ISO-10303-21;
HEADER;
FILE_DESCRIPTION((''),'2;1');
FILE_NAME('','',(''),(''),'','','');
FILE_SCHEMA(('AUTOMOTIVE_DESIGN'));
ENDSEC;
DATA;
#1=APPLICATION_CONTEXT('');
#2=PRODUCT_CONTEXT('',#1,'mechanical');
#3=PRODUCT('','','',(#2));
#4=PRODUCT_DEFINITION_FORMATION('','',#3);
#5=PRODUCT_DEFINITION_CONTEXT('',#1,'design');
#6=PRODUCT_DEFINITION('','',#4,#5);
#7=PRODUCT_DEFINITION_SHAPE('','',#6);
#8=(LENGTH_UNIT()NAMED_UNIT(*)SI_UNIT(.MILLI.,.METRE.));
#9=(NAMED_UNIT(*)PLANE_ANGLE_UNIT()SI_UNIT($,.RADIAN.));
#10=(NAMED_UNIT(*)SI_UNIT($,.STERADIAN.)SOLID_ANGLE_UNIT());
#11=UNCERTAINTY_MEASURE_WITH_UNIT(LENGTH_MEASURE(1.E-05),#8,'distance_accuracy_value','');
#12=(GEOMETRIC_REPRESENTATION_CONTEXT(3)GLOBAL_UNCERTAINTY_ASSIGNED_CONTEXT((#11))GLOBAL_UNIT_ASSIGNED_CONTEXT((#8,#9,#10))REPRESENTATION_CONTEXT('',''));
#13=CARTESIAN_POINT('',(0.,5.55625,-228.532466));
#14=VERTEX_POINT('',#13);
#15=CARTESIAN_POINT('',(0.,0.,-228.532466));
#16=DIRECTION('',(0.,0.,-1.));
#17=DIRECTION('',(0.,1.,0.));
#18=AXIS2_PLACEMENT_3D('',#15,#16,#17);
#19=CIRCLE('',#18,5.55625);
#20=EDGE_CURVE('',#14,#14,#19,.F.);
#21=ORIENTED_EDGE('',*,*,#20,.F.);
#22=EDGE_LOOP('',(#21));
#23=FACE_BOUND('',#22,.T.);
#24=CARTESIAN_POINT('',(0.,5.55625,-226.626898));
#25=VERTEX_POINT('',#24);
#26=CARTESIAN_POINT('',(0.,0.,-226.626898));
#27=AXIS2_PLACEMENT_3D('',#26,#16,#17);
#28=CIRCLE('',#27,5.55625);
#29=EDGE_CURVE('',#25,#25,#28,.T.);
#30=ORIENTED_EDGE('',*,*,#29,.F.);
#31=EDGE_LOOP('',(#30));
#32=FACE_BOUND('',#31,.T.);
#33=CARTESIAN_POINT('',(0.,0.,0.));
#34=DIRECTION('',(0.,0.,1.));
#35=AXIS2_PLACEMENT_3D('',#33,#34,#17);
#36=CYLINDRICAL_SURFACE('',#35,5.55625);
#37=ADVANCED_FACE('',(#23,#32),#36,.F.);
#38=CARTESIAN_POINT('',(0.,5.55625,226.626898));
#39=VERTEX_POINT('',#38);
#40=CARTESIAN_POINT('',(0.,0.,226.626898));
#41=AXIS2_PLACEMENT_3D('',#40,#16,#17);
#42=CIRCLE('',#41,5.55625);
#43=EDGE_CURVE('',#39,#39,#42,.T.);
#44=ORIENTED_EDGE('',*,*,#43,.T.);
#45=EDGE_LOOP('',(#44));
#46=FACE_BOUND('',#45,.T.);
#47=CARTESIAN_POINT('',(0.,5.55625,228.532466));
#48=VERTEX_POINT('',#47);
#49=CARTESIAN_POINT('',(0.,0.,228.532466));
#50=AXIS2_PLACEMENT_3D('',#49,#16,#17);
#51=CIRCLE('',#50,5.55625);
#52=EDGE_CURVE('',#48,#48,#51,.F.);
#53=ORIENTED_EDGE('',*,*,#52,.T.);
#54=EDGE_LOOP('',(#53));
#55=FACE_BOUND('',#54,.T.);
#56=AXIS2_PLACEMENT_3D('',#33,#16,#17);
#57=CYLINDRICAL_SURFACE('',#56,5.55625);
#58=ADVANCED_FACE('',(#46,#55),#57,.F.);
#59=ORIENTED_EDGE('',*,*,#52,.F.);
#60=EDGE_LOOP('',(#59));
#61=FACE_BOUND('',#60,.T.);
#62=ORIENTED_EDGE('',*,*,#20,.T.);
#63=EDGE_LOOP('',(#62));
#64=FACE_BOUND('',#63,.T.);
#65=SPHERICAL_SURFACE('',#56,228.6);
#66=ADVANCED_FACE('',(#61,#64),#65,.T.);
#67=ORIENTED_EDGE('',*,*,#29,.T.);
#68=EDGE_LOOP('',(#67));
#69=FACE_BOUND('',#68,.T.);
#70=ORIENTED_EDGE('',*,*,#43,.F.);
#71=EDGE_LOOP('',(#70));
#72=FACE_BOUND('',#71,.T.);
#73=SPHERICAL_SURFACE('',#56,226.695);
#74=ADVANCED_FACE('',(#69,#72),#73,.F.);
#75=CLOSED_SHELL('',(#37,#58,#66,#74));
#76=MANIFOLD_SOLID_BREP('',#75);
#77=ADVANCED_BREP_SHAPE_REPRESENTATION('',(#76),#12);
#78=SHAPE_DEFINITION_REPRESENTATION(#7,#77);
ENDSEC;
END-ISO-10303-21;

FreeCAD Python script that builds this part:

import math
import FreeCAD as App
import Part
import Sketcher
Q = App.Units.Quantity

doc = App.newDocument("Part")
body = doc.addObject("PartDesign::Body", "Body")

sketch1 = body.newObject("Sketcher::SketchObject", "Sketch")
sketch1.AttachmentSupport = (doc.getObject("XY_Plane"), [""])
sketch1.MapMode = "FlatFace"
sketch1.addGeometry([
    Part.LineSegment(App.Vector(-228.6, 0, 0), App.Vector(-226.7, 0, 0)),
    Part.ArcOfCircle(Part.Circle(App.Vector(0, 0, 0), App.Vector(0, 0, 1), 226.7), math.radians(0), math.radians(180)),
    Part.LineSegment(App.Vector(226.7, 0, 0), App.Vector(228.6, 0, 0)),
    Part.ArcOfCircle(Part.Circle(App.Vector(0, 0, 0), App.Vector(0, 0, 1), 228.6), math.radians(0), math.radians(180)),
], False)
sketch1.addConstraint([
    Sketcher.Constraint("Coincident", 0, 2, 1, 2),
    Sketcher.Constraint("Coincident", 1, 1, 2, 1),
    Sketcher.Constraint("Coincident", 2, 2, 3, 1),
    Sketcher.Constraint("Coincident", 3, 2, 0, 1),
    Sketcher.Constraint("Horizontal", 0),
    Sketcher.Constraint("Horizontal", 2),
    Sketcher.Constraint("Coincident", 1, 3, -1, 1),
    Sketcher.Constraint("Coincident", 3, 3, -1, 1),
    Sketcher.Constraint("PointOnObject", 0, 2, -1),
    Sketcher.Constraint("PointOnObject", 1, 1, -1),
    Sketcher.Constraint("Radius", 3, Q("9 in")),
    Sketcher.Constraint("Radius", 1, Q("8.925 in")),
])
revolution = body.newObject("PartDesign::Revolution", "Revolution")
revolution.Profile = sketch1
revolution.ReferenceAxis = (sketch1, ["H_Axis"])
revolution.Angle = 180

sketch2 = body.newObject("Sketcher::SketchObject", "Sketch001")
sketch2.AttachmentSupport = (doc.getObject("XY_Plane"), [""])
sketch2.MapMode = "FlatFace"
sketch2.AttachmentOffset = App.Placement(App.Vector(0, 0, -10 * 25.4), App.Rotation())
sketch2.addGeometry(Part.Circle(App.Vector(0, 0, 0), App.Vector(0, 0, 1), 6), False)
sketch2.addConstraint([
    Sketcher.Constraint("Coincident", 0, 3, -1, 1),
    Sketcher.Constraint("Diameter", 0, Q("0.4375 in")),
])
pocket1 = body.newObject("PartDesign::Pocket", "Pocket")
pocket1.Profile = sketch2
pocket1.Type = "ThroughAll"
pocket1.Midplane = True
body2 = doc.addObject("PartDesign::Body", "Body001")
doc.recompute()

body2.BaseFeature = body
doc.recompute()

mirroring = doc.addObject("Part::Mirroring", "Mirroring")
mirroring.Source = body
mirroring.Base = App.Vector(0, 0, 0)
mirroring.Normal = App.Vector(0, 0, 1)
body3 = doc.addObject("PartDesign::Body", "Body002")
body3.BaseFeature = mirroring
boolean = body2.newObject("PartDesign::Boolean", "Boolean")
boolean.Type = "Fuse"
boolean.addObjects([body3])
doc.recompute()
mirroring.Visibility = False

doc.recompute()
